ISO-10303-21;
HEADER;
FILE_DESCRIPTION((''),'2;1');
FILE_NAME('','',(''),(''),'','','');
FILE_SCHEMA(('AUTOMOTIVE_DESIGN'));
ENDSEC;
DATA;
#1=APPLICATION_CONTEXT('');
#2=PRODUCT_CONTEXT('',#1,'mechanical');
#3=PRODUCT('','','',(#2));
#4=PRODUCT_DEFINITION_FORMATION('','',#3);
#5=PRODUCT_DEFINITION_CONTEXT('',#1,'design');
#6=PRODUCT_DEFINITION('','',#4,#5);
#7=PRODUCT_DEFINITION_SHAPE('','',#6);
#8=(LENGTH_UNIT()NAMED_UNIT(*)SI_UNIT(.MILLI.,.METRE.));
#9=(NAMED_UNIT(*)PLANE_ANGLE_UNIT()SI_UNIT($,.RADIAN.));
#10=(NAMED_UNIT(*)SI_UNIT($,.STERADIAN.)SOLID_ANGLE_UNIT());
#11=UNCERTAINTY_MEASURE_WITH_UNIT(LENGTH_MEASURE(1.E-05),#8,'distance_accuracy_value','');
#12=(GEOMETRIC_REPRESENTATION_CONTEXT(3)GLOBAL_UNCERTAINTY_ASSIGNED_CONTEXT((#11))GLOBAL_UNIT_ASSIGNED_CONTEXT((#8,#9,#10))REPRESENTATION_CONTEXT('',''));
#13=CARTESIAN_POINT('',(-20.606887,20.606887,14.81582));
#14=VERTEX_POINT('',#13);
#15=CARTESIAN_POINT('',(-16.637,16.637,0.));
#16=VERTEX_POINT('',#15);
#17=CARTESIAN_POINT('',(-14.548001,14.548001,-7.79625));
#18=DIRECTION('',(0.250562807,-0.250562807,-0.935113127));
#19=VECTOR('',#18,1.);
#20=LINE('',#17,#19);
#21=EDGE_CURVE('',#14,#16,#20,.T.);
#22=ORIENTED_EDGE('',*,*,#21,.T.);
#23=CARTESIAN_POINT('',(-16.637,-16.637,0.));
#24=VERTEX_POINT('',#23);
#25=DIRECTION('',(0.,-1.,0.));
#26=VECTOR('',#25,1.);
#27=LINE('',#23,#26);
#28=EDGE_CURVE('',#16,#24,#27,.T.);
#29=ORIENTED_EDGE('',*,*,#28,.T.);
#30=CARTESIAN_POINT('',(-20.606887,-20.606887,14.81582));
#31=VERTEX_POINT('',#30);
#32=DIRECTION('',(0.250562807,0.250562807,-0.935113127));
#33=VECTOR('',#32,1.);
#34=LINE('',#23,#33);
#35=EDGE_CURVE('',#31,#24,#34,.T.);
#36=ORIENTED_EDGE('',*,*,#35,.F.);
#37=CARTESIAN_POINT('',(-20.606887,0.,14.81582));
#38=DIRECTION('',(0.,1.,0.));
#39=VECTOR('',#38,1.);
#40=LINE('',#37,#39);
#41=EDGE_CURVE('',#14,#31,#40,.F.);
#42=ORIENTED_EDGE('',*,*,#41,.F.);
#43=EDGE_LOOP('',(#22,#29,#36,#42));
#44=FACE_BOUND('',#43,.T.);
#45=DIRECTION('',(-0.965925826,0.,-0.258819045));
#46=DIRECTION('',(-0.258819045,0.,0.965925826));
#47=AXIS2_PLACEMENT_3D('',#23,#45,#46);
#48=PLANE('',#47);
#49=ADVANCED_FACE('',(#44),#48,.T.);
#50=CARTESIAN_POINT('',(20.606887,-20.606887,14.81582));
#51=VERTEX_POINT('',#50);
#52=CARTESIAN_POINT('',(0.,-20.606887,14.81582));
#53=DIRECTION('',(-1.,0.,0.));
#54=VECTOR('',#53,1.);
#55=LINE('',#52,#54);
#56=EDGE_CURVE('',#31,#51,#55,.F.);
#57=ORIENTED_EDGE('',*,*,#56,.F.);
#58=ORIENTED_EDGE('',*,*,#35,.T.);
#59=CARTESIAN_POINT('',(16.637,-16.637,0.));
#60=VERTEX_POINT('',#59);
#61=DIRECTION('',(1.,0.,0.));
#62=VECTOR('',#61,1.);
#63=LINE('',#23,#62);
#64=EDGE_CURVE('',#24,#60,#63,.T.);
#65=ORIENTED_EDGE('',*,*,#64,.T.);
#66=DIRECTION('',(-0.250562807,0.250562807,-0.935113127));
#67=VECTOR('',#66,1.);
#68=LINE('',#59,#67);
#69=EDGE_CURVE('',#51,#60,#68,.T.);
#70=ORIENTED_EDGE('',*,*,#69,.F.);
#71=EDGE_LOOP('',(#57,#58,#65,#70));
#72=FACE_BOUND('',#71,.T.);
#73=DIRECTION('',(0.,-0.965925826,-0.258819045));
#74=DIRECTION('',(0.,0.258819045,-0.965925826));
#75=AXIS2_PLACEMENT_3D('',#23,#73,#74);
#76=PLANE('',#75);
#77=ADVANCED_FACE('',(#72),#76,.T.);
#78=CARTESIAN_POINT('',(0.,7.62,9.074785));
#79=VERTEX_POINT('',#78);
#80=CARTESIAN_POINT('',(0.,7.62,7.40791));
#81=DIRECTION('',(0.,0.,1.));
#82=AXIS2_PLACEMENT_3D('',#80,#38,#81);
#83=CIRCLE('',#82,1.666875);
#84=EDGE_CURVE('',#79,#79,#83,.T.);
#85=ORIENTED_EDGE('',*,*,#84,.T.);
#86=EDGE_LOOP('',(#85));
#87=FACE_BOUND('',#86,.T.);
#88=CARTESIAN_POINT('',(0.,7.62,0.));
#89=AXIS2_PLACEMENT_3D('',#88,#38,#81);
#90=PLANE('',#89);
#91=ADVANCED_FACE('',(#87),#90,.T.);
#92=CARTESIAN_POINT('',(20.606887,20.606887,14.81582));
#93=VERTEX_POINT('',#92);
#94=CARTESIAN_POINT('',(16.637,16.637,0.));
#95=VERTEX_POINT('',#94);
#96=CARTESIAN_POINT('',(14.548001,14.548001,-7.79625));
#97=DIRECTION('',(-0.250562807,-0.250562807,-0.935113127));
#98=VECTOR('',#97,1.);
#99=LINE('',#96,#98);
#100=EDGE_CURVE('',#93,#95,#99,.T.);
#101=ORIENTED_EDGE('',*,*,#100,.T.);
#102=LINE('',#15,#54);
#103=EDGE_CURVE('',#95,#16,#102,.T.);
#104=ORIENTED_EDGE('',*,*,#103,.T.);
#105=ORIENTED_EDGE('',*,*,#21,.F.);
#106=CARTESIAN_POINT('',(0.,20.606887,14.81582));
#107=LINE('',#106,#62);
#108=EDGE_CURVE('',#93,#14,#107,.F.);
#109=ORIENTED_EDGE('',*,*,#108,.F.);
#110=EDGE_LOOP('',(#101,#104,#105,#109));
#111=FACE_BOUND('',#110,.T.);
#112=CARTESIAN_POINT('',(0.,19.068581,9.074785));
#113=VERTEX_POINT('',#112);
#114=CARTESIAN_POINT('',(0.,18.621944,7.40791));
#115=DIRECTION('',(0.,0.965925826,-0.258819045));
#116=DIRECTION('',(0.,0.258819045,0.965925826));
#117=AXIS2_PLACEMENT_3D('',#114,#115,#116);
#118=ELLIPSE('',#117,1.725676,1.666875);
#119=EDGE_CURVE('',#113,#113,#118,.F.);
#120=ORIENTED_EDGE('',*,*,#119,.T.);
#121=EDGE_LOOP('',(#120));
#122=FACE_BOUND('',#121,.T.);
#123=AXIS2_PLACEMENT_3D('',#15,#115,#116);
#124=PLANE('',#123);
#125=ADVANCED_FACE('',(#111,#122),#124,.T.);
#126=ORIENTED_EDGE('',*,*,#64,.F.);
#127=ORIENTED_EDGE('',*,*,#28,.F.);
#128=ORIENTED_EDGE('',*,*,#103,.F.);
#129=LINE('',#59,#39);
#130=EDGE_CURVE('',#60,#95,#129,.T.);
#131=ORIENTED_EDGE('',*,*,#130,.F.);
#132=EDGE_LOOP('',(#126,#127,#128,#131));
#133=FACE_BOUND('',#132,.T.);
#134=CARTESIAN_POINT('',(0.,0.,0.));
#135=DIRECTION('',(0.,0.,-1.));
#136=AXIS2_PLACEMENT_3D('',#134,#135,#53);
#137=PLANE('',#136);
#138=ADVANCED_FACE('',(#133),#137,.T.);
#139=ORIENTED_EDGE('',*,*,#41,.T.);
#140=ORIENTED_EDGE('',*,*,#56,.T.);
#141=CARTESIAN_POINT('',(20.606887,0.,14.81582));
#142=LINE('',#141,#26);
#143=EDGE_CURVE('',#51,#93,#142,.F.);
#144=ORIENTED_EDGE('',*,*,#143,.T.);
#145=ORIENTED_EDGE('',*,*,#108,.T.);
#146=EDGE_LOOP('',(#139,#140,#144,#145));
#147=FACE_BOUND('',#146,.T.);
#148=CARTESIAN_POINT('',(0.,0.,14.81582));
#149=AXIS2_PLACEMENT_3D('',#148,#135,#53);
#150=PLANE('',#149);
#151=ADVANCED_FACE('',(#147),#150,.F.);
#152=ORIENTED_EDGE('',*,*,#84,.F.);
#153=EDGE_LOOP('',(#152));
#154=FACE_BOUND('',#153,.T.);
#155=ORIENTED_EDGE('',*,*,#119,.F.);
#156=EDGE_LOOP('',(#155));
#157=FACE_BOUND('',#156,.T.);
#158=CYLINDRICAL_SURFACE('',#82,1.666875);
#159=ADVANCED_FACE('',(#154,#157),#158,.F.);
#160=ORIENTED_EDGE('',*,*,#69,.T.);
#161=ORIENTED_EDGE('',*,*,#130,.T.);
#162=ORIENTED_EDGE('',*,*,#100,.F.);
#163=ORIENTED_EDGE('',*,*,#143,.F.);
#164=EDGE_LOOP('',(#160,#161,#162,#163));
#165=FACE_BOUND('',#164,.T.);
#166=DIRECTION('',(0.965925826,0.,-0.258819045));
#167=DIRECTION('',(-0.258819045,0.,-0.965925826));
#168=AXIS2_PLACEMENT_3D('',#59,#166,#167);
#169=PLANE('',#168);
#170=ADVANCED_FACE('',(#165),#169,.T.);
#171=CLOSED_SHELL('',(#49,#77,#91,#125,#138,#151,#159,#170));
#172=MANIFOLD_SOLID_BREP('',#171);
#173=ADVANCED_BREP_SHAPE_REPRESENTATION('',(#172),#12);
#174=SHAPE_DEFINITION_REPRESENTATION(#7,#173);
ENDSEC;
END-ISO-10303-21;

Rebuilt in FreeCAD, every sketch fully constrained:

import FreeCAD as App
import Part
import Sketcher
from FreeCAD import Vector
Q = App.Units.Quantity


def faces_at(feature, points):
    """Names of the faces that lie closest to the given points."""
    faces = feature.Shape.Faces
    near = lambda p: min(range(len(faces)), key=lambda i: faces[i].distToShape(Part.Vertex(*p))[0])
    return sorted({f"Face{near(p) + 1}" for p in points})

doc = App.newDocument("Part")
params = doc.addObject("Spreadsheet::Sheet", "Params")
for row, (alias, value) in enumerate([
    ("sketch1_width", "1.31 in"),
    ("pad1_length", "0.5833 in"),
    ("draft_angle", "15 deg"),
    ("pocket1_length", "0.5 in"),
], start=1):
    params.set(f"A{row}", alias)
    params.set(f"B{row}", "=" + value)
    params.setAlias(f"B{row}", alias)

body = doc.addObject("PartDesign::Body", "Body")

# Sketch on XY plane
sketch1 = body.newObject("Sketcher::SketchObject", "Sketch")
sketch1.AttachmentSupport = (doc.getObject("XY_Plane"), [""])
sketch1.MapMode = "FlatFace"
sketch1.addGeometry(Part.LineSegment(Vector(-17, 17, 0), Vector(-17, -17, 0)), False)
sketch1.addGeometry(Part.LineSegment(Vector(-17, -17, 0), Vector(17, -17, 0)), False)
sketch1.addGeometry(Part.LineSegment(Vector(17, -17, 0), Vector(17, 17, 0)), False)
sketch1.addGeometry(Part.LineSegment(Vector(17, 17, 0), Vector(-17, 17, 0)), False)
sketch1.addConstraint(Sketcher.Constraint("Coincident", 0, 2, 1, 1))
sketch1.addConstraint(Sketcher.Constraint("Coincident", 1, 2, 2, 1))
sketch1.addConstraint(Sketcher.Constraint("Coincident", 2, 2, 3, 1))
sketch1.addConstraint(Sketcher.Constraint("Coincident", 3, 2, 0, 1))
sketch1.addConstraint(Sketcher.Constraint("Vertical", 0))
sketch1.addConstraint(Sketcher.Constraint("Horizontal", 1))
sketch1.addConstraint(Sketcher.Constraint("Vertical", 2))
sketch1.addConstraint(Sketcher.Constraint("Horizontal", 3))
sketch1.addConstraint(Sketcher.Constraint("Symmetric", 0, 2, 2, 2, -1, 1))
sketch1.addConstraint(Sketcher.Constraint("Equal", 3, 0))
sketch1.addConstraint(Sketcher.Constraint("DistanceX", 1, 1, 1, 2, Q("1.31 in")))
sketch1.setExpression("Constraints[10]", "Params.sketch1_width")
pad1 = body.newObject("PartDesign::Pad", "Pad")
pad1.Profile = sketch1
pad1.setExpression("Length", "Params.pad1_length")
doc.recompute()

draft = body.newObject("PartDesign::Draft", "Draft")
draft.Base = (pad1, faces_at(pad1, [
    (0, -16.637, 7.408),
    (16.637, 0, 7.408),
    (0, 16.637, 7.408),
    (-16.637, 0, 7.408),
]))
draft.NeutralPlane = (doc.getObject("XY_Plane"), [""])
draft.setExpression("Angle", "Params.draft_angle")
draft.Reversed = True

# Sketch on XZ plane
sketch2 = body.newObject("Sketcher::SketchObject", "Sketch001")
sketch2.AttachmentSupport = (doc.getObject("XZ_Plane"), [""])
sketch2.MapMode = "FlatFace"
sketch2.AttachmentOffset = App.Placement(Vector(0, 0, -0.8 * 25.4), App.Rotation())
sketch2.addGeometry(Part.Circle(Vector(0, 7.4, 0), Vector(0, 0, 1), 1.7), False)
sketch2.addConstraint(Sketcher.Constraint("PointOnObject", 0, 3, -2))
sketch2.addConstraint(Sketcher.Constraint("Diameter", 0, 3.33375))
sketch2.addConstraint(Sketcher.Constraint("DistanceY", -1, 1, 0, 3, 7.40791))
pocket1 = body.newObject("PartDesign::Pocket", "Pocket")
pocket1.Profile = sketch2
pocket1.setExpression("Length", "Params.pocket1_length")
pocket1.Reversed = True

doc.recompute()
